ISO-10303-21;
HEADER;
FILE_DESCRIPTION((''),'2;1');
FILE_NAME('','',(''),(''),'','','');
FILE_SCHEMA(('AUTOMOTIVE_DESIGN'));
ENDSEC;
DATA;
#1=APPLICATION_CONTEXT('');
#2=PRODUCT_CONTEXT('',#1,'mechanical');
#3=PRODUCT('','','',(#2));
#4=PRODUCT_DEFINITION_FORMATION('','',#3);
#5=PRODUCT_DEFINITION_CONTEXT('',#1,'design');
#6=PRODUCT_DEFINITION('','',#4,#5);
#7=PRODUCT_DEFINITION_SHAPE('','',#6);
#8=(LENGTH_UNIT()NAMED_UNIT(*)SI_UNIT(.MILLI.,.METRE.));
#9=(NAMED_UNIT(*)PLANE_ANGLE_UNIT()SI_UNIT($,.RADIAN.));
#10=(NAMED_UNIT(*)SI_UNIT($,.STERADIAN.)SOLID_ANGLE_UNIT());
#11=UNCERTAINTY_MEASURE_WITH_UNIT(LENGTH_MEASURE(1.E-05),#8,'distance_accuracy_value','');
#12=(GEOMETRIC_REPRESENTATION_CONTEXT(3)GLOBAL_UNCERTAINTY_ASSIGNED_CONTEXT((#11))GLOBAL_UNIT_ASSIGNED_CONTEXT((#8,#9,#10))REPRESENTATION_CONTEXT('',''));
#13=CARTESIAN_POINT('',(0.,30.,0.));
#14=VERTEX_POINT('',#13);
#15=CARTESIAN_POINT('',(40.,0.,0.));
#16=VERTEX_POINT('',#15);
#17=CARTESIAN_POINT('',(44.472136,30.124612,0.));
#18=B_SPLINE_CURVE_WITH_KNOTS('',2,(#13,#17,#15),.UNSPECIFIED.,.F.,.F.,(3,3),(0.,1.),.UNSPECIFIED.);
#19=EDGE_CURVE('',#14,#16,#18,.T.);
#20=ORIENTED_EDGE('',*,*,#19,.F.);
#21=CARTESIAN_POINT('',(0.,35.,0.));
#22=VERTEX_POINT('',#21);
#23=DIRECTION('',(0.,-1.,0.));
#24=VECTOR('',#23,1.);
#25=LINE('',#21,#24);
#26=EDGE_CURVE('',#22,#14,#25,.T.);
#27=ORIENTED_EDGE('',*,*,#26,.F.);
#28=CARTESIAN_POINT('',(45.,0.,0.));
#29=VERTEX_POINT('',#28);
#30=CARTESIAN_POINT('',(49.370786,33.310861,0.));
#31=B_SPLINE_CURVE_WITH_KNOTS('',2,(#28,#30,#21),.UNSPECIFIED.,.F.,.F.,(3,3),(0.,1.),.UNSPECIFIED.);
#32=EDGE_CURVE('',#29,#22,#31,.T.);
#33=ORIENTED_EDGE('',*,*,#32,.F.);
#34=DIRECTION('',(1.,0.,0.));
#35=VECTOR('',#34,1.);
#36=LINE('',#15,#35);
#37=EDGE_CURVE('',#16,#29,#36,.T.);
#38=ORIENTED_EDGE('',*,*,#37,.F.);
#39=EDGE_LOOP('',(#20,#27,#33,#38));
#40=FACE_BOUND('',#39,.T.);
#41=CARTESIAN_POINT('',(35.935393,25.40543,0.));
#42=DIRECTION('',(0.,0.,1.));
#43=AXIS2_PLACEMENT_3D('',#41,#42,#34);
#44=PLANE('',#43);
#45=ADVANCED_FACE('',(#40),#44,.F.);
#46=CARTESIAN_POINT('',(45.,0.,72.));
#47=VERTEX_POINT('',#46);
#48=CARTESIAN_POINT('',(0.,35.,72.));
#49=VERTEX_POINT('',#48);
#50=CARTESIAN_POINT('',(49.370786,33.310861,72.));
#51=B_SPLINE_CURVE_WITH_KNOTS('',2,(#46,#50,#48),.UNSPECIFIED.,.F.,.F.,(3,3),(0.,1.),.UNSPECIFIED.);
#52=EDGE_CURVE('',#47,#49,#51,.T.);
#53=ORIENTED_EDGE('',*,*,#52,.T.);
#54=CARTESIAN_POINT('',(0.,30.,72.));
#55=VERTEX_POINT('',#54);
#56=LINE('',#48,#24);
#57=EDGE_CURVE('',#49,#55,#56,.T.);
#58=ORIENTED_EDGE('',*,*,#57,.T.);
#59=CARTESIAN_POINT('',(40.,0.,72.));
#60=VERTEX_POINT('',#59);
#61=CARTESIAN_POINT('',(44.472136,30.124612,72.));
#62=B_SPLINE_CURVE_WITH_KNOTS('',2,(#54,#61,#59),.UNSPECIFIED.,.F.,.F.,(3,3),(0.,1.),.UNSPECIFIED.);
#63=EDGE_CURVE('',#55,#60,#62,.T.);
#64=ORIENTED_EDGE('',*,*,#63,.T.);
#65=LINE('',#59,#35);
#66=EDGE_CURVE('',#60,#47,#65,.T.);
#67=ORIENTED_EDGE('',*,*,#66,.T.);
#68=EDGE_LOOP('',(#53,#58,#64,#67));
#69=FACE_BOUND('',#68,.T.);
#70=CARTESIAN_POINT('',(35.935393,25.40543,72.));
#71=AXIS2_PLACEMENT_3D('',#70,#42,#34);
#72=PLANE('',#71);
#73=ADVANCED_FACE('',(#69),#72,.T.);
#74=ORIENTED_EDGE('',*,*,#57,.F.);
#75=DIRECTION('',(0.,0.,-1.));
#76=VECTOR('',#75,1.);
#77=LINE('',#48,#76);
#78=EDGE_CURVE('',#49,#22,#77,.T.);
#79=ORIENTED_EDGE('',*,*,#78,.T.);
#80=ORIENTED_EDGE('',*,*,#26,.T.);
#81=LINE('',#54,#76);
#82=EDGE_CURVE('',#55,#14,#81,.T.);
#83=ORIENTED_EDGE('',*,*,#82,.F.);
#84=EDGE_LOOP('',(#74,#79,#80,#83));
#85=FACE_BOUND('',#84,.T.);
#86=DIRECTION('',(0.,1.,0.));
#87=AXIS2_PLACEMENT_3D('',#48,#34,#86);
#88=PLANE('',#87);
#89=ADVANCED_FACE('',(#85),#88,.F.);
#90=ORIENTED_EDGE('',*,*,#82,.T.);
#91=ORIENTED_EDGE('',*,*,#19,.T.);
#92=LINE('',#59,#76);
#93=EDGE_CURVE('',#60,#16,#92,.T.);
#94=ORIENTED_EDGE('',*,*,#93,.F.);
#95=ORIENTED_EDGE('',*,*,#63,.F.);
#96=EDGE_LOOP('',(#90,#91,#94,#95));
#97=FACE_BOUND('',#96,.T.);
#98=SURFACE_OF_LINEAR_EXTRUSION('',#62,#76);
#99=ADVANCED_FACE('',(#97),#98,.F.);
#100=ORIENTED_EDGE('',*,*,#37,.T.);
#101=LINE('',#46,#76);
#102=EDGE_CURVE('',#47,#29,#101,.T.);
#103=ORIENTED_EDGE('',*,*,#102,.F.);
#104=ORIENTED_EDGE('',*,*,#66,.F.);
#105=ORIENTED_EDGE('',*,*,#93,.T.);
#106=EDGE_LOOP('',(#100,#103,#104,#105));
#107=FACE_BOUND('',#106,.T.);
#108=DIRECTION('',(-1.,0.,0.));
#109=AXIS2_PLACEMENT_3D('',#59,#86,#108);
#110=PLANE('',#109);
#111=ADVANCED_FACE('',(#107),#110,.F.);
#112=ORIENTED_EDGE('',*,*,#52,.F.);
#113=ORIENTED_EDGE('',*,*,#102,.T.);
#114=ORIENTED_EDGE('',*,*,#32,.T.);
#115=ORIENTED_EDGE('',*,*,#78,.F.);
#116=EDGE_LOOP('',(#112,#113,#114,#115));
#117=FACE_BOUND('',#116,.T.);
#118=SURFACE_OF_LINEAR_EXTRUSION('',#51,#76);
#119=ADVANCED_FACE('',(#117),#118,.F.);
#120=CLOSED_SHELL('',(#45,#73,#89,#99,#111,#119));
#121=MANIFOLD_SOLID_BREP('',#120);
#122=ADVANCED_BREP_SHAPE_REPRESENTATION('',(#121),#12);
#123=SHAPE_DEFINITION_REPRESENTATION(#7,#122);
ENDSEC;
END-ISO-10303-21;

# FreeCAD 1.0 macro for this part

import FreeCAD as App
import Part
import Sketcher
from FreeCAD import Vector

doc = App.newDocument("Part")
body = doc.addObject("PartDesign::Body", "Body")

# Sketch on XY plane
sketch1 = body.newObject("Sketcher::SketchObject", "Sketch")
sketch1.AttachmentSupport = (doc.getObject("XY_Plane"), [""])
sketch1.MapMode = "FlatFace"
sketch1.addGeometry(Part.LineSegment(Vector(0, 35, 0), Vector(0, 30, 0)), False)
sketch1.addGeometry(Part.BSplineCurve([Vector(0, 30, 0), Vector(44.472136, 30.124612, 0), Vector(40, 0, 0)], [3, 3], [0, 1], False, 2, [1, 1, 1], False), False)
sketch1.addGeometry(Part.LineSegment(Vector(40, 0, 0), Vector(45, 0, 0)), False)
sketch1.addGeometry(Part.BSplineCurve([Vector(0, 35, 0), Vector(49.370786, 33.310861, 0), Vector(45, 0, 0)], [3, 3], [0, 1], False, 2, [1, 1, 1], False), False)
sketch1.addConstraint(Sketcher.Constraint("Block", 1))
sketch1.addConstraint(Sketcher.Constraint("Block", 3))
sketch1.addConstraint(Sketcher.Constraint("Coincident", 0, 2, 1, 1))
sketch1.addConstraint(Sketcher.Constraint("Coincident", 1, 2, 2, 1))
sketch1.addConstraint(Sketcher.Constraint("Coincident", 2, 2, 3, 2))
sketch1.addConstraint(Sketcher.Constraint("Coincident", 3, 1, 0, 1))
pad1 = body.newObject("PartDesign::Pad", "Pad")
pad1.Profile = sketch1
pad1.Length = 72

doc.recompute()
